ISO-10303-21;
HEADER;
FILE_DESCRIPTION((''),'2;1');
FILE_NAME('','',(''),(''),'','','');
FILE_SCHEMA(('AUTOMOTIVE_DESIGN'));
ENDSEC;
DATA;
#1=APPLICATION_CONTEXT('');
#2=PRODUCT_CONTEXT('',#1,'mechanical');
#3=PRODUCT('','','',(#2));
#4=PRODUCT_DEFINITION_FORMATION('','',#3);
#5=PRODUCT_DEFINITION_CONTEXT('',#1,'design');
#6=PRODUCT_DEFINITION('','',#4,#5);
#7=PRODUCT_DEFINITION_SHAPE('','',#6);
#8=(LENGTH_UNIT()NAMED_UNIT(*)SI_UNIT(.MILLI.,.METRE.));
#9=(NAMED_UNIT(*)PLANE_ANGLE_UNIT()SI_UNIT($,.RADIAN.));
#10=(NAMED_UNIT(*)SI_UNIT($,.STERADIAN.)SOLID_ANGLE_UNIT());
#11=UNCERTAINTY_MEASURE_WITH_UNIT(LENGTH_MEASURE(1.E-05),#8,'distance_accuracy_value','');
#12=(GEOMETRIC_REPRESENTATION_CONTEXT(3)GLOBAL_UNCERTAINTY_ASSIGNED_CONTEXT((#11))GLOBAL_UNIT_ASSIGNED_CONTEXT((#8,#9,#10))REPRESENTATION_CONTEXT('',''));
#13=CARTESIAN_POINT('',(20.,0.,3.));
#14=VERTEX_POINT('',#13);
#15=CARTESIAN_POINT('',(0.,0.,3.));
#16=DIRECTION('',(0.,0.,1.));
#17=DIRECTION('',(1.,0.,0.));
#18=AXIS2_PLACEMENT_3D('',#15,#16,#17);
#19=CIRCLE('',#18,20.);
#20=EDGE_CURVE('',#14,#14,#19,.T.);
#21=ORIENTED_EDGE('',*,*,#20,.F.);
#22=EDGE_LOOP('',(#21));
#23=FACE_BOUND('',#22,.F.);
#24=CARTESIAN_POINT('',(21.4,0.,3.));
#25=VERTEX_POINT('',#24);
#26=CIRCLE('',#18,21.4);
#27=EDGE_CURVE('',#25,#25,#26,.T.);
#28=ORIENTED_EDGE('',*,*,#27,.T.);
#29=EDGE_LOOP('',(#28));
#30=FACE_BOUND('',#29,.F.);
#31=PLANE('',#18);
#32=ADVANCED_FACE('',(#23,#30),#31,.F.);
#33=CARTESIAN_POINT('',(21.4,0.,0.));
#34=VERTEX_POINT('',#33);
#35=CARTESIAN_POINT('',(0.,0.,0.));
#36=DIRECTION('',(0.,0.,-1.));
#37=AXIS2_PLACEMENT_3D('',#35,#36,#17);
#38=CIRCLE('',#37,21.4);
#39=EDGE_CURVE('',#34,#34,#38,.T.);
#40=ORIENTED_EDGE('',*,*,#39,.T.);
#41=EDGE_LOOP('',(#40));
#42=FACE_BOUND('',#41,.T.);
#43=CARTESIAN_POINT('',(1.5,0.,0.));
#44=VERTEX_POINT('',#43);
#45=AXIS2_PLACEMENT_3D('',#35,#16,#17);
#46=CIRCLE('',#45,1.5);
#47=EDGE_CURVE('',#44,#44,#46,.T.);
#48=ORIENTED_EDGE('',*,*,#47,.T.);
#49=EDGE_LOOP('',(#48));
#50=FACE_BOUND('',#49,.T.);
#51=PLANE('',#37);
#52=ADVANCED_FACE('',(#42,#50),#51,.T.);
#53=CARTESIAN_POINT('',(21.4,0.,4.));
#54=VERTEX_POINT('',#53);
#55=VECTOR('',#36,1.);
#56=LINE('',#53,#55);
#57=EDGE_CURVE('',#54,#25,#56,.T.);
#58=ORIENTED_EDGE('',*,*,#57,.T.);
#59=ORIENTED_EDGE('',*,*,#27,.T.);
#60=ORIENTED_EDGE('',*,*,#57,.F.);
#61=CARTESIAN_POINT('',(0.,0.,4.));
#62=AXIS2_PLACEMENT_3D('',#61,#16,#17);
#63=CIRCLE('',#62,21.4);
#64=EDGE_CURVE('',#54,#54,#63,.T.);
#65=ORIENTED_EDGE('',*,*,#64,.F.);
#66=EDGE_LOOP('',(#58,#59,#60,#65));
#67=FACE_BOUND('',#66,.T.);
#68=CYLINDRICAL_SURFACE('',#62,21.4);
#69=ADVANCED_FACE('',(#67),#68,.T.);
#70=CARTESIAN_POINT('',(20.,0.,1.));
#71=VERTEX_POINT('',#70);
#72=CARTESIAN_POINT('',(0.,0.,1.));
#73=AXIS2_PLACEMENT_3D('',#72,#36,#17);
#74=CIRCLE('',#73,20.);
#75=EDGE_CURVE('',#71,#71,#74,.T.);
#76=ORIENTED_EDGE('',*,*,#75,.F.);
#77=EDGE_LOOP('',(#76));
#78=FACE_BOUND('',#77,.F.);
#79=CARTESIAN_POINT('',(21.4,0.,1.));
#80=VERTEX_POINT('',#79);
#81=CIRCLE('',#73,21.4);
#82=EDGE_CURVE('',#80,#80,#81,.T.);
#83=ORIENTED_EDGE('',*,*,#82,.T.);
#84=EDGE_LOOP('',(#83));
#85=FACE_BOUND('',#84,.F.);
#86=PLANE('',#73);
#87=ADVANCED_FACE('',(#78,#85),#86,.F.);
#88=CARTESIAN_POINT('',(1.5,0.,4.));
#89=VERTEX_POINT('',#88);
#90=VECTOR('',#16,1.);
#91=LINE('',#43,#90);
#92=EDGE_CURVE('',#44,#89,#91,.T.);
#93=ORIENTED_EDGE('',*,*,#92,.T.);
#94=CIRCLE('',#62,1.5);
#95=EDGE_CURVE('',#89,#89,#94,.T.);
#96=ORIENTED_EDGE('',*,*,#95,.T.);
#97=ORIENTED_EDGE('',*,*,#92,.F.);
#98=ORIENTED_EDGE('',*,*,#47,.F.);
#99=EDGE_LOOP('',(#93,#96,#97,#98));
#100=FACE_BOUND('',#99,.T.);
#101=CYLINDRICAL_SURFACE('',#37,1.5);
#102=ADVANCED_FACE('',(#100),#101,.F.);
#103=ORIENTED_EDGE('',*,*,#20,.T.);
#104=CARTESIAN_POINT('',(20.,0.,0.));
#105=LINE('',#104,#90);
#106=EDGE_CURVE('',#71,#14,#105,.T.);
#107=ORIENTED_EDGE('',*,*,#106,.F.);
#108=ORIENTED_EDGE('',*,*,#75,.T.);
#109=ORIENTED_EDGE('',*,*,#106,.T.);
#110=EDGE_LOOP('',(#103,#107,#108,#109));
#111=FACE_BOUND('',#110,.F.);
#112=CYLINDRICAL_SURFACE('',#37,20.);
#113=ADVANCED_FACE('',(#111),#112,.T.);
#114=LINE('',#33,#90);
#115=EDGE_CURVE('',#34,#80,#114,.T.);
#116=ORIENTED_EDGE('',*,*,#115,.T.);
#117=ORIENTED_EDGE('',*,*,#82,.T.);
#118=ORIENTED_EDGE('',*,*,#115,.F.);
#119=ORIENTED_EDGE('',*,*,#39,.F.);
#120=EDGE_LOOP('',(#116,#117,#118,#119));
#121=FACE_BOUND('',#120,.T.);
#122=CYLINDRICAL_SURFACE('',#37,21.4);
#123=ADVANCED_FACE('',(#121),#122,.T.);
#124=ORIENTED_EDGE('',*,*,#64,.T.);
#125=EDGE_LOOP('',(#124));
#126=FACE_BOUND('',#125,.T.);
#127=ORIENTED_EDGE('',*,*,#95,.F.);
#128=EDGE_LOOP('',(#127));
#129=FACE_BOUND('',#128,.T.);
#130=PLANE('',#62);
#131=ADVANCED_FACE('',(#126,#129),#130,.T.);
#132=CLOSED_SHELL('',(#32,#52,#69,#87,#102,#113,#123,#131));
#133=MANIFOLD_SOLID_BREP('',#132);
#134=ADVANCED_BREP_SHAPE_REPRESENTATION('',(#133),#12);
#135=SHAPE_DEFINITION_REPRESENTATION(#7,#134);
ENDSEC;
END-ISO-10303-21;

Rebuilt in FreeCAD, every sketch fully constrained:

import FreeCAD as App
import Part
import Sketcher
from FreeCAD import Vector

doc = App.newDocument("Part")
body = doc.addObject("PartDesign::Body", "Body")

# Sketch on XY plane
sketch1 = doc.addObject("Sketcher::SketchObject", "Sketch")
body.addObject(sketch1)
sketch1.AttachmentSupport = (doc.XY_Plane, [""])
sketch1.MapMode = "FlatFace"
sketch1.addGeometry([
    Part.Circle(Vector(0, 0, 0), Vector(0, 0, 1), 20),
    Part.Circle(Vector(0, 0, 0), Vector(0, 0, 1), 1.5),
], False)
sketch1.addConstraint([
    Sketcher.Constraint("Coincident", 0, 3, -1, 1),
    Sketcher.Constraint("Coincident", 1, 3, -1, 1),
    Sketcher.Constraint("Diameter", 0, 40.0),
    Sketcher.Constraint("Diameter", 1, 3.0),
])
pad1 = doc.addObject("PartDesign::Pad", "Pad")
body.addObject(pad1)
pad1.Profile = sketch1
pad1.Length = 4

# Sketch on XY plane
sketch2 = doc.addObject("Sketcher::SketchObject", "Sketch001")
body.addObject(sketch2)
sketch2.AttachmentSupport = (doc.XY_Plane, [""])
sketch2.MapMode = "FlatFace"
sketch2.AttachmentOffset = App.Placement(Vector(0, 0, 4), App.Rotation())
sketch2.addGeometry([
    Part.Circle(Vector(0, 0, 0), Vector(0, 0, 1), 21),
    Part.Circle(Vector(0, 0, 0), Vector(0, 0, 1), 20),
], False)
sketch2.addConstraint([
    Sketcher.Constraint("Coincident", 0, 3, -1, 1),
    Sketcher.Constraint("Coincident", 1, 3, -1, 1),
    Sketcher.Constraint("Diameter", 1, 40.0),
    Sketcher.Constraint("Diameter", 0, 42.8),
])
pad2 = doc.addObject("PartDesign::Pad", "Pad001")
body.addObject(pad2)
pad2.Profile = sketch2
pad2.Length = 1
pad2.Reversed = True

# Sketch on XY plane
sketch3 = doc.addObject("Sketcher::SketchObject", "Sketch002")
body.addObject(sketch3)
sketch3.AttachmentSupport = (doc.XY_Plane, [""])
sketch3.MapMode = "FlatFace"
sketch3.addGeometry([
    Part.Circle(Vector(0, 0, 0), Vector(0, 0, 1), 21),
    Part.Circle(Vector(0, 0, 0), Vector(0, 0, 1), 20),
], False)
sketch3.addConstraint([
    Sketcher.Constraint("Coincident", 0, 3, -1, 1),
    Sketcher.Constraint("Coincident", 1, 3, -1, 1),
    Sketcher.Constraint("Diameter", 1, 40.0),
    Sketcher.Constraint("Diameter", 0, 42.8),
])
pad3 = doc.addObject("PartDesign::Pad", "Pad002")
body.addObject(pad3)
pad3.Profile = sketch3
pad3.Length = 1

doc.recompute()
